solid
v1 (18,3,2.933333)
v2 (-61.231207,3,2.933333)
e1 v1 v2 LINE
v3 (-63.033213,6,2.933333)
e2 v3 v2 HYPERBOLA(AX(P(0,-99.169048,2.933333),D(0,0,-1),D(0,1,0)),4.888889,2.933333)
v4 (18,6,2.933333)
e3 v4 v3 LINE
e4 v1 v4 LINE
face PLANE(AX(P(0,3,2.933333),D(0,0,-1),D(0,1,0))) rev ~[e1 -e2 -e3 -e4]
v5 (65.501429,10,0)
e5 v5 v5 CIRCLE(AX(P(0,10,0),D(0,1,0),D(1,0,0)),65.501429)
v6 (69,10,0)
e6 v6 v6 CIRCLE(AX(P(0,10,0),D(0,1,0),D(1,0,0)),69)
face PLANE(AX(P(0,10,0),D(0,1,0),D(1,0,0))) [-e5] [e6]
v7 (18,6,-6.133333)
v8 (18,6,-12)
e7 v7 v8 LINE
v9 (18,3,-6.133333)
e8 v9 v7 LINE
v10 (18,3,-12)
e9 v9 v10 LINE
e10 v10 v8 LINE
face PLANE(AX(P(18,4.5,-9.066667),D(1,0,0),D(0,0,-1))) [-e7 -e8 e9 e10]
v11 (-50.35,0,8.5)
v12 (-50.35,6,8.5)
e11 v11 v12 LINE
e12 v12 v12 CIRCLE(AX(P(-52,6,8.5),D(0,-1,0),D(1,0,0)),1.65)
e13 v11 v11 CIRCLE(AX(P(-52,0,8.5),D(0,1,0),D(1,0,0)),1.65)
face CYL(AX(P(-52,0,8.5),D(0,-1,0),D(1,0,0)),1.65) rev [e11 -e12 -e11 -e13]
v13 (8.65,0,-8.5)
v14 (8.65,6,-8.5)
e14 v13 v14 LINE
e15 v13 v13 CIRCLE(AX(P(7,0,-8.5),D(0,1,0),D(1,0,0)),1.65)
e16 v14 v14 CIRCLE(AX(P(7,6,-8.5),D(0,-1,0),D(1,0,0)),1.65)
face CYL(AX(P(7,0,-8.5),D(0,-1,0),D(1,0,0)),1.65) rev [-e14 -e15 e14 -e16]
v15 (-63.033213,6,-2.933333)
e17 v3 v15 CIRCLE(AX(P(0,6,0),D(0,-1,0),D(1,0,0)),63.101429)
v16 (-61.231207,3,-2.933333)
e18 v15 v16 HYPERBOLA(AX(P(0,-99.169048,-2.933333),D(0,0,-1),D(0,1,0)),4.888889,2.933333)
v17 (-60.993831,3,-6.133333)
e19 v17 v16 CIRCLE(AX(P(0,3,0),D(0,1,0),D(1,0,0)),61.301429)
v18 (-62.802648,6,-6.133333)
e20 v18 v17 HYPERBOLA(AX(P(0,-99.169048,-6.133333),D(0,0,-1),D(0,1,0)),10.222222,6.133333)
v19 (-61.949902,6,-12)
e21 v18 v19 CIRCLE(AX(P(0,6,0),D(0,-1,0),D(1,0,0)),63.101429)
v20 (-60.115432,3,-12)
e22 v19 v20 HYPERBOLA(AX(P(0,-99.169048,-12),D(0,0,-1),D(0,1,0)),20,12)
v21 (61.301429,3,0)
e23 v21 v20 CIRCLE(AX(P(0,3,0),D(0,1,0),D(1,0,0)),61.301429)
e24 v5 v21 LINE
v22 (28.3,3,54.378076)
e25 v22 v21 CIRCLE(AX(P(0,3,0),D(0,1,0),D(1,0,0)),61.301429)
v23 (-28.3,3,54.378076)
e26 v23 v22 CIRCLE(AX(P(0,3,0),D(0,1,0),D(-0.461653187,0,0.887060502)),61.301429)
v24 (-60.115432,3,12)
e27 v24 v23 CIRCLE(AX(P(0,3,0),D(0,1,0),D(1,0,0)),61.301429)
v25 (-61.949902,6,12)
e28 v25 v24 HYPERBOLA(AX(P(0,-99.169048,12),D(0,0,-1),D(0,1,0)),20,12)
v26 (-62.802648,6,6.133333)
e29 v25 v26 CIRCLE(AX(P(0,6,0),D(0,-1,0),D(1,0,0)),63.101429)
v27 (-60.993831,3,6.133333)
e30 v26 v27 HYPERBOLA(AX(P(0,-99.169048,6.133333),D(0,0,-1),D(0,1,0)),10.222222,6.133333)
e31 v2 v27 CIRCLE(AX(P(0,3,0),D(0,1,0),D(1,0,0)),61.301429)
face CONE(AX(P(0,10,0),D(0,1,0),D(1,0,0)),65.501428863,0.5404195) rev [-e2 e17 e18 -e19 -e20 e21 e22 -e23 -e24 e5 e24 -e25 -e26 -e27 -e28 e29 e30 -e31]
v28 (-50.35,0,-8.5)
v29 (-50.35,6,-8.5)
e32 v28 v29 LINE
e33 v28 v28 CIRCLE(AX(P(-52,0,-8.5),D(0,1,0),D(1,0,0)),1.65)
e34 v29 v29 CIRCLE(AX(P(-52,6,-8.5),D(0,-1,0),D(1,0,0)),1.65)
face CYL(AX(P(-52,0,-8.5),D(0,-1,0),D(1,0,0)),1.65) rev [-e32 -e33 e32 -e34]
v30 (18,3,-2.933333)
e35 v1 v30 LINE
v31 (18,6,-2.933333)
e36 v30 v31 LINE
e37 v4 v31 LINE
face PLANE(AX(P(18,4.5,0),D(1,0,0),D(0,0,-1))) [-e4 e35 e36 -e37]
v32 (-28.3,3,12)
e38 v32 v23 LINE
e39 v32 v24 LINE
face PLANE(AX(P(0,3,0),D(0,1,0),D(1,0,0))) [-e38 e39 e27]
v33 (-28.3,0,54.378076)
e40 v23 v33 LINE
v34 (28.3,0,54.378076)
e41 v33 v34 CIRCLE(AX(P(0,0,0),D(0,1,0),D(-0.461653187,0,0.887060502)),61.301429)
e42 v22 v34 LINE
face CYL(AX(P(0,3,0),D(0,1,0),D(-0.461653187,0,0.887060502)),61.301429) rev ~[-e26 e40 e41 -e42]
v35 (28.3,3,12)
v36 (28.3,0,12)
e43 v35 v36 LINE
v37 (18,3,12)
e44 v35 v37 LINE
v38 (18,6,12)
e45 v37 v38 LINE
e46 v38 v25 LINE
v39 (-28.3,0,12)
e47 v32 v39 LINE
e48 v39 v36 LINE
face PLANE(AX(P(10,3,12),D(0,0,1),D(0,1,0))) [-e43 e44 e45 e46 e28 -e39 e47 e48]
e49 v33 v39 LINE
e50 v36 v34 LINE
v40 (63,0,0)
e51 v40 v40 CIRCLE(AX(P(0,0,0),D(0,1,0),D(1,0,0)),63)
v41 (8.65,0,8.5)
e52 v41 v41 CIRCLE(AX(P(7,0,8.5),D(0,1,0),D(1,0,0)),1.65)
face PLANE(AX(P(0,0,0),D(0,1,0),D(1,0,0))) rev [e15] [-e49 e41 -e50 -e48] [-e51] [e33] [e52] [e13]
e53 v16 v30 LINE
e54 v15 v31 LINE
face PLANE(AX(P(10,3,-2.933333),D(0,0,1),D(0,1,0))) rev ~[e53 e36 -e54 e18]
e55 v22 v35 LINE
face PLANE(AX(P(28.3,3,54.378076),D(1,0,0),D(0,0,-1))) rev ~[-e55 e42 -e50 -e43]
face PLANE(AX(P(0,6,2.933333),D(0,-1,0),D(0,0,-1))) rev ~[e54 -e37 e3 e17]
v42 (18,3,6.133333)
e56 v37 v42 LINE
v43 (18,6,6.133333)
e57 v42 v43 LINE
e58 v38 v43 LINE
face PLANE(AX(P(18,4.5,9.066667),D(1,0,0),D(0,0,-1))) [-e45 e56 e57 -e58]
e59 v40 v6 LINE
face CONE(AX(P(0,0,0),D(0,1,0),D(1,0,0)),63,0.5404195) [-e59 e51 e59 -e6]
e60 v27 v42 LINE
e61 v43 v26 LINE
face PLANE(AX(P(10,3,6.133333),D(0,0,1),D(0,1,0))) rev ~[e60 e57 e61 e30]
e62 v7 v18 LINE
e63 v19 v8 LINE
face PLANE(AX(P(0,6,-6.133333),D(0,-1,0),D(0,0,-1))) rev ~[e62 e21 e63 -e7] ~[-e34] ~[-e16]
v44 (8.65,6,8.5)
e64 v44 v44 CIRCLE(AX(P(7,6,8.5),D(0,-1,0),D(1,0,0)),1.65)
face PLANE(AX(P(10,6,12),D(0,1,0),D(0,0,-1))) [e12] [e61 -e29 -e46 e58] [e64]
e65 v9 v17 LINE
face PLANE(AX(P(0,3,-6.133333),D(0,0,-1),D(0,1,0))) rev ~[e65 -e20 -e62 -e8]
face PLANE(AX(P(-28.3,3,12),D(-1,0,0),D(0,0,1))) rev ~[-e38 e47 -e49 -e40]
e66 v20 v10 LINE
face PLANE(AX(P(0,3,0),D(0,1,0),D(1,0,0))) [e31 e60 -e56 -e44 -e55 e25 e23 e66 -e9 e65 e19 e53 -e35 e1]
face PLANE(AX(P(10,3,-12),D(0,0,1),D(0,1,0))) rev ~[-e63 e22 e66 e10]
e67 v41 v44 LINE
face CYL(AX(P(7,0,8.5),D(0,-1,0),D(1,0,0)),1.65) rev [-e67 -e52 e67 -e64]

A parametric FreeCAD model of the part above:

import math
import FreeCAD as App
import Part
import Sketcher

V = App.Vector

doc = App.newDocument("Part")
body = doc.addObject("PartDesign::Body", "Body")

sketch1 = body.newObject("Sketcher::SketchObject", "Sketch")
sketch1.AttachmentSupport = (doc.getObject("XY_Plane"), [""])
sketch1.MapMode = "FlatFace"
sketch1.addGeometry([
    Part.LineSegment(V(0, 0, 0), V(63, 0, 0)),
    Part.LineSegment(V(63, 0, 0), V(69, 10, 0)),
    Part.LineSegment(V(69, 10, 0), V(65.501429, 10, 0)),
    Part.LineSegment(V(65.501429, 10, 0), V(61.301429, 3, 0)),
    Part.LineSegment(V(61.301429, 3, 0), V(0, 3, 0)),
    Part.LineSegment(V(0, 3, 0), V(0, 0, 0)),
], False)
sketch1.addConstraint([
    Sketcher.Constraint("Coincident", 0, 2, 1, 1),
    Sketcher.Constraint("Coincident", 1, 2, 2, 1),
    Sketcher.Constraint("Coincident", 2, 2, 3, 1),
    Sketcher.Constraint("Coincident", 3, 2, 4, 1),
    Sketcher.Constraint("Coincident", 4, 2, 5, 1),
    Sketcher.Constraint("Coincident", 5, 2, 0, 1),
    Sketcher.Constraint("Horizontal", 0),
    Sketcher.Constraint("Horizontal", 2),
    Sketcher.Constraint("Horizontal", 4),
    Sketcher.Constraint("Vertical", 5),
    Sketcher.Constraint("Coincident", 5, 2, -1, 1),
    Sketcher.Constraint("Parallel", 1, 3),
    Sketcher.Constraint("DistanceX", 0, 1, 0, 2, 63.0),
    Sketcher.Constraint("DistanceY", 5, 2, 5, 1, 3.0),
    Sketcher.Constraint("DistanceX", -1, 1, 1, 2, 69.0),
    Sketcher.Constraint("DistanceY", -1, 1, 1, 2, 10.0),
    Sketcher.Constraint("DistanceX", 2, 2, 2, 1, 3.498571),
])
revolution = body.newObject("PartDesign::Revolution", "Revolution")
revolution.Profile = sketch1
revolution.ReferenceAxis = (sketch1, ["V_Axis"])
revolution.Angle = 360

sketch2 = body.newObject("Sketcher::SketchObject", "Sketch001")
sketch2.AttachmentSupport = (doc.getObject("XZ_Plane"), [""])
sketch2.MapMode = "FlatFace"
sketch2.AttachmentOffset = App.Placement(V(0, 0, -3), App.Rotation())
sketch2.addGeometry([
    Part.LineSegment(V(-28.3, 12, 0), V(-28.3, 54.378076, 0)),
    Part.ArcOfCircle(Part.Circle(V(0, 0, 0), V(0, 0, 1), 61.301429), math.radians(62.506164), math.radians(117.493836)),
    Part.LineSegment(V(28.3, 54.378076, 0), V(28.3, 12, 0)),
    Part.LineSegment(V(28.3, 12, 0), V(-28.3, 12, 0)),
], False)
sketch2.addConstraint([
    Sketcher.Constraint("Coincident", 0, 2, 1, 2),
    Sketcher.Constraint("Coincident", 1, 1, 2, 1),
    Sketcher.Constraint("Coincident", 2, 2, 3, 1),
    Sketcher.Constraint("Coincident", 3, 2, 0, 1),
    Sketcher.Constraint("Vertical", 0),
    Sketcher.Constraint("Vertical", 2),
    Sketcher.Constraint("Horizontal", 3),
    Sketcher.Constraint("Coincident", 1, 3, -1, 1),
    Sketcher.Constraint("Horizontal", 0, 2, 1, 1),
    Sketcher.Constraint("DistanceX", 3, 2, 3, 1, 56.6),
    Sketcher.Constraint("DistanceY", -1, 1, 2, 2, 12.0),
    Sketcher.Constraint("Radius", 1, 61.301429),
])
pocket1 = body.newObject("PartDesign::Pocket", "Pocket")
pocket1.Profile = sketch2
pocket1.Type = "ThroughAll"
pocket1.Reversed = True

sketch3 = body.newObject("Sketcher::SketchObject", "Sketch002")
sketch3.AttachmentSupport = (doc.getObject("YZ_Plane"), [""])
sketch3.MapMode = "FlatFace"
sketch3.addGeometry([
    Part.LineSegment(V(6, 12, 0), V(3, 12, 0)),
    Part.LineSegment(V(3, 12, 0), V(3, 6.133333, 0)),
    Part.LineSegment(V(3, 6.133333, 0), V(6, 6.133333, 0)),
    Part.LineSegment(V(6, 6.133333, 0), V(6, 12, 0)),
    Part.LineSegment(V(6, 2.933333, 0), V(3, 2.933333, 0)),
    Part.LineSegment(V(3, 2.933333, 0), V(3, -2.933333, 0)),
    Part.LineSegment(V(3, -2.933333, 0), V(6, -2.933333, 0)),
    Part.LineSegment(V(6, -2.933333, 0), V(6, 2.933333, 0)),
    Part.LineSegment(V(6, -6.133333, 0), V(3, -6.133333, 0)),
    Part.LineSegment(V(3, -6.133333, 0), V(3, -12, 0)),
    Part.LineSegment(V(3, -12, 0), V(6, -12, 0)),
    Part.LineSegment(V(6, -12, 0), V(6, -6.133333, 0)),
], False)
sketch3.addConstraint([
    Sketcher.Constraint("Coincident", 0, 2, 1, 1),
    Sketcher.Constraint("Coincident", 1, 2, 2, 1),
    Sketcher.Constraint("Coincident", 2, 2, 3, 1),
    Sketcher.Constraint("Coincident", 3, 2, 0, 1),
    Sketcher.Constraint("Coincident", 4, 2, 5, 1),
    Sketcher.Constraint("Coincident", 5, 2, 6, 1),
    Sketcher.Constraint("Coincident", 6, 2, 7, 1),
    Sketcher.Constraint("Coincident", 7, 2, 4, 1),
    Sketcher.Constraint("Coincident", 8, 2, 9, 1),
    Sketcher.Constraint("Coincident", 9, 2, 10, 1),
    Sketcher.Constraint("Coincident", 10, 2, 11, 1),
    Sketcher.Constraint("Coincident", 11, 2, 8, 1),
    Sketcher.Constraint("Horizontal", 0),
    Sketcher.Constraint("Vertical", 1),
    Sketcher.Constraint("Horizontal", 2),
    Sketcher.Constraint("Vertical", 3),
    Sketcher.Constraint("Horizontal", 4),
    Sketcher.Constraint("Vertical", 5),
    Sketcher.Constraint("Horizontal", 6),
    Sketcher.Constraint("Vertical", 7),
    Sketcher.Constraint("Horizontal", 8),
    Sketcher.Constraint("Vertical", 9),
    Sketcher.Constraint("Horizontal", 10),
    Sketcher.Constraint("Vertical", 11),
    Sketcher.Constraint("Symmetric", 1, 2, 8, 2, -1),
    Sketcher.Constraint("Symmetric", 3, 2, 10, 2, -1),
    Sketcher.Constraint("Vertical", 1, 2, 4, 2),
    Sketcher.Constraint("Vertical", 3, 2, 6, 2),
    Sketcher.Constraint("Equal", 3, 5),
    Sketcher.Constraint("DistanceX", 0, 2, 0, 1, 3.0),
    Sketcher.Constraint("DistanceX", -1, 1, 0, 2, 3.0),
    Sketcher.Constraint("DistanceY", -1, 1, 0, 2, 12.0),
    Sketcher.Constraint("DistanceY", 4, 2, 1, 2, 3.2),
    Sketcher.Constraint("DistanceY", 8, 2, 5, 2, 3.2),
])
pad1 = body.newObject("PartDesign::Pad", "Pad")
pad1.Profile = sketch3
pad1.Type = "TwoLengths"
pad1.Length = 10
pad1.Length2 = 63.5

sketch4 = body.newObject("Sketcher::SketchObject", "Sketch003")
sketch4.AttachmentSupport = (doc.getObject("XZ_Plane"), [""])
sketch4.MapMode = "FlatFace"
sketch4.addGeometry([
    Part.Circle(V(7, 8.5, 0), V(0, 0, 1), 1.65),
    Part.Circle(V(7, -8.5, 0), V(0, 0, 1), 1.65),
    Part.Circle(V(-52, -8.5, 0), V(0, 0, 1), 1.65),
    Part.Circle(V(-52, 8.5, 0), V(0, 0, 1), 1.65),
], False)
sketch4.addConstraint([
    Sketcher.Constraint("Equal", 0, 1),
    Sketcher.Constraint("Equal", 1, 2),
    Sketcher.Constraint("Equal", 2, 3),
    Sketcher.Constraint("Symmetric", 0, 3, 1, 3, -1),
    Sketcher.Constraint("Symmetric", 2, 3, 3, 3, -1),
    Sketcher.Constraint("Horizontal", 1, 3, 2, 3),
    Sketcher.Constraint("Diameter", 0, 3.3),
    Sketcher.Constraint("DistanceX", -1, 1, 0, 3, 7.0),
    Sketcher.Constraint("DistanceX", 2, 3, -1, 1, 52.0),
    Sketcher.Constraint("DistanceY", 1, 3, 0, 3, 17.0),
])
pocket2 = body.newObject("PartDesign::Pocket", "Pocket001")
pocket2.Profile = sketch4
pocket2.Type = "ThroughAll"

sketch5 = body.newObject("Sketcher::SketchObject", "Sketch004")
sketch5.AttachmentSupport = (doc.getObject("YZ_Plane"), [""])
sketch5.MapMode = "FlatFace"
sketch5.AttachmentOffset = App.Placement(V(0, 0, 10), App.Rotation())
sketch5.addGeometry([
    Part.LineSegment(V(6, 12, 0), V(3, 12, 0)),
    Part.LineSegment(V(3, 12, 0), V(3, 6.133333, 0)),
    Part.LineSegment(V(3, 6.133333, 0), V(6, 6.133333, 0)),
    Part.LineSegment(V(6, 6.133333, 0), V(6, 12, 0)),
    Part.LineSegment(V(6, 2.933333, 0), V(3, 2.933333, 0)),
    Part.LineSegment(V(3, 2.933333, 0), V(3, -2.933333, 0)),
    Part.LineSegment(V(3, -2.933333, 0), V(6, -2.933333, 0)),
    Part.LineSegment(V(6, -2.933333, 0), V(6, 2.933333, 0)),
    Part.LineSegment(V(6, -6.133333, 0), V(3, -6.133333, 0)),
    Part.LineSegment(V(3, -6.133333, 0), V(3, -12, 0)),
    Part.LineSegment(V(3, -12, 0), V(6, -12, 0)),
    Part.LineSegment(V(6, -12, 0), V(6, -6.133333, 0)),
], False)
sketch5.addConstraint([
    Sketcher.Constraint("Coincident", 0, 2, 1, 1),
    Sketcher.Constraint("Coincident", 1, 2, 2, 1),
    Sketcher.Constraint("Coincident", 2, 2, 3, 1),
    Sketcher.Constraint("Coincident", 3, 2, 0, 1),
    Sketcher.Constraint("Coincident", 4, 2, 5, 1),
    Sketcher.Constraint("Coincident", 5, 2, 6, 1),
    Sketcher.Constraint("Coincident", 6, 2, 7, 1),
    Sketcher.Constraint("Coincident", 7, 2, 4, 1),
    Sketcher.Constraint("Coincident", 8, 2, 9, 1),
    Sketcher.Constraint("Coincident", 9, 2, 10, 1),
    Sketcher.Constraint("Coincident", 10, 2, 11, 1),
    Sketcher.Constraint("Coincident", 11, 2, 8, 1),
    Sketcher.Constraint("Horizontal", 0),
    Sketcher.Constraint("Vertical", 1),
    Sketcher.Constraint("Horizontal", 2),
    Sketcher.Constraint("Vertical", 3),
    Sketcher.Constraint("Horizontal", 4),
    Sketcher.Constraint("Vertical", 5),
    Sketcher.Constraint("Horizontal", 6),
    Sketcher.Constraint("Vertical", 7),
    Sketcher.Constraint("Horizontal", 8),
    Sketcher.Constraint("Vertical", 9),
    Sketcher.Constraint("Horizontal", 10),
    Sketcher.Constraint("Vertical", 11),
    Sketcher.Constraint("Symmetric", 1, 2, 8, 2, -1),
    Sketcher.Constraint("Symmetric", 3, 2, 10, 2, -1),
    Sketcher.Constraint("Vertical", 1, 2, 4, 2),
    Sketcher.Constraint("Vertical", 3, 2, 6, 2),
    Sketcher.Constraint("Equal", 3, 5),
    Sketcher.Constraint("DistanceX", 0, 2, 0, 1, 3.0),
    Sketcher.Constraint("DistanceX", -1, 1, 0, 2, 3.0),
    Sketcher.Constraint("DistanceY", -1, 1, 0, 2, 12.0),
    Sketcher.Constraint("DistanceY", 4, 2, 1, 2, 3.2),
    Sketcher.Constraint("DistanceY", 8, 2, 5, 2, 3.2),
])
pad2 = body.newObject("PartDesign::Pad", "Pad001")
pad2.Profile = sketch5
pad2.Length = 8

doc.recompute()
